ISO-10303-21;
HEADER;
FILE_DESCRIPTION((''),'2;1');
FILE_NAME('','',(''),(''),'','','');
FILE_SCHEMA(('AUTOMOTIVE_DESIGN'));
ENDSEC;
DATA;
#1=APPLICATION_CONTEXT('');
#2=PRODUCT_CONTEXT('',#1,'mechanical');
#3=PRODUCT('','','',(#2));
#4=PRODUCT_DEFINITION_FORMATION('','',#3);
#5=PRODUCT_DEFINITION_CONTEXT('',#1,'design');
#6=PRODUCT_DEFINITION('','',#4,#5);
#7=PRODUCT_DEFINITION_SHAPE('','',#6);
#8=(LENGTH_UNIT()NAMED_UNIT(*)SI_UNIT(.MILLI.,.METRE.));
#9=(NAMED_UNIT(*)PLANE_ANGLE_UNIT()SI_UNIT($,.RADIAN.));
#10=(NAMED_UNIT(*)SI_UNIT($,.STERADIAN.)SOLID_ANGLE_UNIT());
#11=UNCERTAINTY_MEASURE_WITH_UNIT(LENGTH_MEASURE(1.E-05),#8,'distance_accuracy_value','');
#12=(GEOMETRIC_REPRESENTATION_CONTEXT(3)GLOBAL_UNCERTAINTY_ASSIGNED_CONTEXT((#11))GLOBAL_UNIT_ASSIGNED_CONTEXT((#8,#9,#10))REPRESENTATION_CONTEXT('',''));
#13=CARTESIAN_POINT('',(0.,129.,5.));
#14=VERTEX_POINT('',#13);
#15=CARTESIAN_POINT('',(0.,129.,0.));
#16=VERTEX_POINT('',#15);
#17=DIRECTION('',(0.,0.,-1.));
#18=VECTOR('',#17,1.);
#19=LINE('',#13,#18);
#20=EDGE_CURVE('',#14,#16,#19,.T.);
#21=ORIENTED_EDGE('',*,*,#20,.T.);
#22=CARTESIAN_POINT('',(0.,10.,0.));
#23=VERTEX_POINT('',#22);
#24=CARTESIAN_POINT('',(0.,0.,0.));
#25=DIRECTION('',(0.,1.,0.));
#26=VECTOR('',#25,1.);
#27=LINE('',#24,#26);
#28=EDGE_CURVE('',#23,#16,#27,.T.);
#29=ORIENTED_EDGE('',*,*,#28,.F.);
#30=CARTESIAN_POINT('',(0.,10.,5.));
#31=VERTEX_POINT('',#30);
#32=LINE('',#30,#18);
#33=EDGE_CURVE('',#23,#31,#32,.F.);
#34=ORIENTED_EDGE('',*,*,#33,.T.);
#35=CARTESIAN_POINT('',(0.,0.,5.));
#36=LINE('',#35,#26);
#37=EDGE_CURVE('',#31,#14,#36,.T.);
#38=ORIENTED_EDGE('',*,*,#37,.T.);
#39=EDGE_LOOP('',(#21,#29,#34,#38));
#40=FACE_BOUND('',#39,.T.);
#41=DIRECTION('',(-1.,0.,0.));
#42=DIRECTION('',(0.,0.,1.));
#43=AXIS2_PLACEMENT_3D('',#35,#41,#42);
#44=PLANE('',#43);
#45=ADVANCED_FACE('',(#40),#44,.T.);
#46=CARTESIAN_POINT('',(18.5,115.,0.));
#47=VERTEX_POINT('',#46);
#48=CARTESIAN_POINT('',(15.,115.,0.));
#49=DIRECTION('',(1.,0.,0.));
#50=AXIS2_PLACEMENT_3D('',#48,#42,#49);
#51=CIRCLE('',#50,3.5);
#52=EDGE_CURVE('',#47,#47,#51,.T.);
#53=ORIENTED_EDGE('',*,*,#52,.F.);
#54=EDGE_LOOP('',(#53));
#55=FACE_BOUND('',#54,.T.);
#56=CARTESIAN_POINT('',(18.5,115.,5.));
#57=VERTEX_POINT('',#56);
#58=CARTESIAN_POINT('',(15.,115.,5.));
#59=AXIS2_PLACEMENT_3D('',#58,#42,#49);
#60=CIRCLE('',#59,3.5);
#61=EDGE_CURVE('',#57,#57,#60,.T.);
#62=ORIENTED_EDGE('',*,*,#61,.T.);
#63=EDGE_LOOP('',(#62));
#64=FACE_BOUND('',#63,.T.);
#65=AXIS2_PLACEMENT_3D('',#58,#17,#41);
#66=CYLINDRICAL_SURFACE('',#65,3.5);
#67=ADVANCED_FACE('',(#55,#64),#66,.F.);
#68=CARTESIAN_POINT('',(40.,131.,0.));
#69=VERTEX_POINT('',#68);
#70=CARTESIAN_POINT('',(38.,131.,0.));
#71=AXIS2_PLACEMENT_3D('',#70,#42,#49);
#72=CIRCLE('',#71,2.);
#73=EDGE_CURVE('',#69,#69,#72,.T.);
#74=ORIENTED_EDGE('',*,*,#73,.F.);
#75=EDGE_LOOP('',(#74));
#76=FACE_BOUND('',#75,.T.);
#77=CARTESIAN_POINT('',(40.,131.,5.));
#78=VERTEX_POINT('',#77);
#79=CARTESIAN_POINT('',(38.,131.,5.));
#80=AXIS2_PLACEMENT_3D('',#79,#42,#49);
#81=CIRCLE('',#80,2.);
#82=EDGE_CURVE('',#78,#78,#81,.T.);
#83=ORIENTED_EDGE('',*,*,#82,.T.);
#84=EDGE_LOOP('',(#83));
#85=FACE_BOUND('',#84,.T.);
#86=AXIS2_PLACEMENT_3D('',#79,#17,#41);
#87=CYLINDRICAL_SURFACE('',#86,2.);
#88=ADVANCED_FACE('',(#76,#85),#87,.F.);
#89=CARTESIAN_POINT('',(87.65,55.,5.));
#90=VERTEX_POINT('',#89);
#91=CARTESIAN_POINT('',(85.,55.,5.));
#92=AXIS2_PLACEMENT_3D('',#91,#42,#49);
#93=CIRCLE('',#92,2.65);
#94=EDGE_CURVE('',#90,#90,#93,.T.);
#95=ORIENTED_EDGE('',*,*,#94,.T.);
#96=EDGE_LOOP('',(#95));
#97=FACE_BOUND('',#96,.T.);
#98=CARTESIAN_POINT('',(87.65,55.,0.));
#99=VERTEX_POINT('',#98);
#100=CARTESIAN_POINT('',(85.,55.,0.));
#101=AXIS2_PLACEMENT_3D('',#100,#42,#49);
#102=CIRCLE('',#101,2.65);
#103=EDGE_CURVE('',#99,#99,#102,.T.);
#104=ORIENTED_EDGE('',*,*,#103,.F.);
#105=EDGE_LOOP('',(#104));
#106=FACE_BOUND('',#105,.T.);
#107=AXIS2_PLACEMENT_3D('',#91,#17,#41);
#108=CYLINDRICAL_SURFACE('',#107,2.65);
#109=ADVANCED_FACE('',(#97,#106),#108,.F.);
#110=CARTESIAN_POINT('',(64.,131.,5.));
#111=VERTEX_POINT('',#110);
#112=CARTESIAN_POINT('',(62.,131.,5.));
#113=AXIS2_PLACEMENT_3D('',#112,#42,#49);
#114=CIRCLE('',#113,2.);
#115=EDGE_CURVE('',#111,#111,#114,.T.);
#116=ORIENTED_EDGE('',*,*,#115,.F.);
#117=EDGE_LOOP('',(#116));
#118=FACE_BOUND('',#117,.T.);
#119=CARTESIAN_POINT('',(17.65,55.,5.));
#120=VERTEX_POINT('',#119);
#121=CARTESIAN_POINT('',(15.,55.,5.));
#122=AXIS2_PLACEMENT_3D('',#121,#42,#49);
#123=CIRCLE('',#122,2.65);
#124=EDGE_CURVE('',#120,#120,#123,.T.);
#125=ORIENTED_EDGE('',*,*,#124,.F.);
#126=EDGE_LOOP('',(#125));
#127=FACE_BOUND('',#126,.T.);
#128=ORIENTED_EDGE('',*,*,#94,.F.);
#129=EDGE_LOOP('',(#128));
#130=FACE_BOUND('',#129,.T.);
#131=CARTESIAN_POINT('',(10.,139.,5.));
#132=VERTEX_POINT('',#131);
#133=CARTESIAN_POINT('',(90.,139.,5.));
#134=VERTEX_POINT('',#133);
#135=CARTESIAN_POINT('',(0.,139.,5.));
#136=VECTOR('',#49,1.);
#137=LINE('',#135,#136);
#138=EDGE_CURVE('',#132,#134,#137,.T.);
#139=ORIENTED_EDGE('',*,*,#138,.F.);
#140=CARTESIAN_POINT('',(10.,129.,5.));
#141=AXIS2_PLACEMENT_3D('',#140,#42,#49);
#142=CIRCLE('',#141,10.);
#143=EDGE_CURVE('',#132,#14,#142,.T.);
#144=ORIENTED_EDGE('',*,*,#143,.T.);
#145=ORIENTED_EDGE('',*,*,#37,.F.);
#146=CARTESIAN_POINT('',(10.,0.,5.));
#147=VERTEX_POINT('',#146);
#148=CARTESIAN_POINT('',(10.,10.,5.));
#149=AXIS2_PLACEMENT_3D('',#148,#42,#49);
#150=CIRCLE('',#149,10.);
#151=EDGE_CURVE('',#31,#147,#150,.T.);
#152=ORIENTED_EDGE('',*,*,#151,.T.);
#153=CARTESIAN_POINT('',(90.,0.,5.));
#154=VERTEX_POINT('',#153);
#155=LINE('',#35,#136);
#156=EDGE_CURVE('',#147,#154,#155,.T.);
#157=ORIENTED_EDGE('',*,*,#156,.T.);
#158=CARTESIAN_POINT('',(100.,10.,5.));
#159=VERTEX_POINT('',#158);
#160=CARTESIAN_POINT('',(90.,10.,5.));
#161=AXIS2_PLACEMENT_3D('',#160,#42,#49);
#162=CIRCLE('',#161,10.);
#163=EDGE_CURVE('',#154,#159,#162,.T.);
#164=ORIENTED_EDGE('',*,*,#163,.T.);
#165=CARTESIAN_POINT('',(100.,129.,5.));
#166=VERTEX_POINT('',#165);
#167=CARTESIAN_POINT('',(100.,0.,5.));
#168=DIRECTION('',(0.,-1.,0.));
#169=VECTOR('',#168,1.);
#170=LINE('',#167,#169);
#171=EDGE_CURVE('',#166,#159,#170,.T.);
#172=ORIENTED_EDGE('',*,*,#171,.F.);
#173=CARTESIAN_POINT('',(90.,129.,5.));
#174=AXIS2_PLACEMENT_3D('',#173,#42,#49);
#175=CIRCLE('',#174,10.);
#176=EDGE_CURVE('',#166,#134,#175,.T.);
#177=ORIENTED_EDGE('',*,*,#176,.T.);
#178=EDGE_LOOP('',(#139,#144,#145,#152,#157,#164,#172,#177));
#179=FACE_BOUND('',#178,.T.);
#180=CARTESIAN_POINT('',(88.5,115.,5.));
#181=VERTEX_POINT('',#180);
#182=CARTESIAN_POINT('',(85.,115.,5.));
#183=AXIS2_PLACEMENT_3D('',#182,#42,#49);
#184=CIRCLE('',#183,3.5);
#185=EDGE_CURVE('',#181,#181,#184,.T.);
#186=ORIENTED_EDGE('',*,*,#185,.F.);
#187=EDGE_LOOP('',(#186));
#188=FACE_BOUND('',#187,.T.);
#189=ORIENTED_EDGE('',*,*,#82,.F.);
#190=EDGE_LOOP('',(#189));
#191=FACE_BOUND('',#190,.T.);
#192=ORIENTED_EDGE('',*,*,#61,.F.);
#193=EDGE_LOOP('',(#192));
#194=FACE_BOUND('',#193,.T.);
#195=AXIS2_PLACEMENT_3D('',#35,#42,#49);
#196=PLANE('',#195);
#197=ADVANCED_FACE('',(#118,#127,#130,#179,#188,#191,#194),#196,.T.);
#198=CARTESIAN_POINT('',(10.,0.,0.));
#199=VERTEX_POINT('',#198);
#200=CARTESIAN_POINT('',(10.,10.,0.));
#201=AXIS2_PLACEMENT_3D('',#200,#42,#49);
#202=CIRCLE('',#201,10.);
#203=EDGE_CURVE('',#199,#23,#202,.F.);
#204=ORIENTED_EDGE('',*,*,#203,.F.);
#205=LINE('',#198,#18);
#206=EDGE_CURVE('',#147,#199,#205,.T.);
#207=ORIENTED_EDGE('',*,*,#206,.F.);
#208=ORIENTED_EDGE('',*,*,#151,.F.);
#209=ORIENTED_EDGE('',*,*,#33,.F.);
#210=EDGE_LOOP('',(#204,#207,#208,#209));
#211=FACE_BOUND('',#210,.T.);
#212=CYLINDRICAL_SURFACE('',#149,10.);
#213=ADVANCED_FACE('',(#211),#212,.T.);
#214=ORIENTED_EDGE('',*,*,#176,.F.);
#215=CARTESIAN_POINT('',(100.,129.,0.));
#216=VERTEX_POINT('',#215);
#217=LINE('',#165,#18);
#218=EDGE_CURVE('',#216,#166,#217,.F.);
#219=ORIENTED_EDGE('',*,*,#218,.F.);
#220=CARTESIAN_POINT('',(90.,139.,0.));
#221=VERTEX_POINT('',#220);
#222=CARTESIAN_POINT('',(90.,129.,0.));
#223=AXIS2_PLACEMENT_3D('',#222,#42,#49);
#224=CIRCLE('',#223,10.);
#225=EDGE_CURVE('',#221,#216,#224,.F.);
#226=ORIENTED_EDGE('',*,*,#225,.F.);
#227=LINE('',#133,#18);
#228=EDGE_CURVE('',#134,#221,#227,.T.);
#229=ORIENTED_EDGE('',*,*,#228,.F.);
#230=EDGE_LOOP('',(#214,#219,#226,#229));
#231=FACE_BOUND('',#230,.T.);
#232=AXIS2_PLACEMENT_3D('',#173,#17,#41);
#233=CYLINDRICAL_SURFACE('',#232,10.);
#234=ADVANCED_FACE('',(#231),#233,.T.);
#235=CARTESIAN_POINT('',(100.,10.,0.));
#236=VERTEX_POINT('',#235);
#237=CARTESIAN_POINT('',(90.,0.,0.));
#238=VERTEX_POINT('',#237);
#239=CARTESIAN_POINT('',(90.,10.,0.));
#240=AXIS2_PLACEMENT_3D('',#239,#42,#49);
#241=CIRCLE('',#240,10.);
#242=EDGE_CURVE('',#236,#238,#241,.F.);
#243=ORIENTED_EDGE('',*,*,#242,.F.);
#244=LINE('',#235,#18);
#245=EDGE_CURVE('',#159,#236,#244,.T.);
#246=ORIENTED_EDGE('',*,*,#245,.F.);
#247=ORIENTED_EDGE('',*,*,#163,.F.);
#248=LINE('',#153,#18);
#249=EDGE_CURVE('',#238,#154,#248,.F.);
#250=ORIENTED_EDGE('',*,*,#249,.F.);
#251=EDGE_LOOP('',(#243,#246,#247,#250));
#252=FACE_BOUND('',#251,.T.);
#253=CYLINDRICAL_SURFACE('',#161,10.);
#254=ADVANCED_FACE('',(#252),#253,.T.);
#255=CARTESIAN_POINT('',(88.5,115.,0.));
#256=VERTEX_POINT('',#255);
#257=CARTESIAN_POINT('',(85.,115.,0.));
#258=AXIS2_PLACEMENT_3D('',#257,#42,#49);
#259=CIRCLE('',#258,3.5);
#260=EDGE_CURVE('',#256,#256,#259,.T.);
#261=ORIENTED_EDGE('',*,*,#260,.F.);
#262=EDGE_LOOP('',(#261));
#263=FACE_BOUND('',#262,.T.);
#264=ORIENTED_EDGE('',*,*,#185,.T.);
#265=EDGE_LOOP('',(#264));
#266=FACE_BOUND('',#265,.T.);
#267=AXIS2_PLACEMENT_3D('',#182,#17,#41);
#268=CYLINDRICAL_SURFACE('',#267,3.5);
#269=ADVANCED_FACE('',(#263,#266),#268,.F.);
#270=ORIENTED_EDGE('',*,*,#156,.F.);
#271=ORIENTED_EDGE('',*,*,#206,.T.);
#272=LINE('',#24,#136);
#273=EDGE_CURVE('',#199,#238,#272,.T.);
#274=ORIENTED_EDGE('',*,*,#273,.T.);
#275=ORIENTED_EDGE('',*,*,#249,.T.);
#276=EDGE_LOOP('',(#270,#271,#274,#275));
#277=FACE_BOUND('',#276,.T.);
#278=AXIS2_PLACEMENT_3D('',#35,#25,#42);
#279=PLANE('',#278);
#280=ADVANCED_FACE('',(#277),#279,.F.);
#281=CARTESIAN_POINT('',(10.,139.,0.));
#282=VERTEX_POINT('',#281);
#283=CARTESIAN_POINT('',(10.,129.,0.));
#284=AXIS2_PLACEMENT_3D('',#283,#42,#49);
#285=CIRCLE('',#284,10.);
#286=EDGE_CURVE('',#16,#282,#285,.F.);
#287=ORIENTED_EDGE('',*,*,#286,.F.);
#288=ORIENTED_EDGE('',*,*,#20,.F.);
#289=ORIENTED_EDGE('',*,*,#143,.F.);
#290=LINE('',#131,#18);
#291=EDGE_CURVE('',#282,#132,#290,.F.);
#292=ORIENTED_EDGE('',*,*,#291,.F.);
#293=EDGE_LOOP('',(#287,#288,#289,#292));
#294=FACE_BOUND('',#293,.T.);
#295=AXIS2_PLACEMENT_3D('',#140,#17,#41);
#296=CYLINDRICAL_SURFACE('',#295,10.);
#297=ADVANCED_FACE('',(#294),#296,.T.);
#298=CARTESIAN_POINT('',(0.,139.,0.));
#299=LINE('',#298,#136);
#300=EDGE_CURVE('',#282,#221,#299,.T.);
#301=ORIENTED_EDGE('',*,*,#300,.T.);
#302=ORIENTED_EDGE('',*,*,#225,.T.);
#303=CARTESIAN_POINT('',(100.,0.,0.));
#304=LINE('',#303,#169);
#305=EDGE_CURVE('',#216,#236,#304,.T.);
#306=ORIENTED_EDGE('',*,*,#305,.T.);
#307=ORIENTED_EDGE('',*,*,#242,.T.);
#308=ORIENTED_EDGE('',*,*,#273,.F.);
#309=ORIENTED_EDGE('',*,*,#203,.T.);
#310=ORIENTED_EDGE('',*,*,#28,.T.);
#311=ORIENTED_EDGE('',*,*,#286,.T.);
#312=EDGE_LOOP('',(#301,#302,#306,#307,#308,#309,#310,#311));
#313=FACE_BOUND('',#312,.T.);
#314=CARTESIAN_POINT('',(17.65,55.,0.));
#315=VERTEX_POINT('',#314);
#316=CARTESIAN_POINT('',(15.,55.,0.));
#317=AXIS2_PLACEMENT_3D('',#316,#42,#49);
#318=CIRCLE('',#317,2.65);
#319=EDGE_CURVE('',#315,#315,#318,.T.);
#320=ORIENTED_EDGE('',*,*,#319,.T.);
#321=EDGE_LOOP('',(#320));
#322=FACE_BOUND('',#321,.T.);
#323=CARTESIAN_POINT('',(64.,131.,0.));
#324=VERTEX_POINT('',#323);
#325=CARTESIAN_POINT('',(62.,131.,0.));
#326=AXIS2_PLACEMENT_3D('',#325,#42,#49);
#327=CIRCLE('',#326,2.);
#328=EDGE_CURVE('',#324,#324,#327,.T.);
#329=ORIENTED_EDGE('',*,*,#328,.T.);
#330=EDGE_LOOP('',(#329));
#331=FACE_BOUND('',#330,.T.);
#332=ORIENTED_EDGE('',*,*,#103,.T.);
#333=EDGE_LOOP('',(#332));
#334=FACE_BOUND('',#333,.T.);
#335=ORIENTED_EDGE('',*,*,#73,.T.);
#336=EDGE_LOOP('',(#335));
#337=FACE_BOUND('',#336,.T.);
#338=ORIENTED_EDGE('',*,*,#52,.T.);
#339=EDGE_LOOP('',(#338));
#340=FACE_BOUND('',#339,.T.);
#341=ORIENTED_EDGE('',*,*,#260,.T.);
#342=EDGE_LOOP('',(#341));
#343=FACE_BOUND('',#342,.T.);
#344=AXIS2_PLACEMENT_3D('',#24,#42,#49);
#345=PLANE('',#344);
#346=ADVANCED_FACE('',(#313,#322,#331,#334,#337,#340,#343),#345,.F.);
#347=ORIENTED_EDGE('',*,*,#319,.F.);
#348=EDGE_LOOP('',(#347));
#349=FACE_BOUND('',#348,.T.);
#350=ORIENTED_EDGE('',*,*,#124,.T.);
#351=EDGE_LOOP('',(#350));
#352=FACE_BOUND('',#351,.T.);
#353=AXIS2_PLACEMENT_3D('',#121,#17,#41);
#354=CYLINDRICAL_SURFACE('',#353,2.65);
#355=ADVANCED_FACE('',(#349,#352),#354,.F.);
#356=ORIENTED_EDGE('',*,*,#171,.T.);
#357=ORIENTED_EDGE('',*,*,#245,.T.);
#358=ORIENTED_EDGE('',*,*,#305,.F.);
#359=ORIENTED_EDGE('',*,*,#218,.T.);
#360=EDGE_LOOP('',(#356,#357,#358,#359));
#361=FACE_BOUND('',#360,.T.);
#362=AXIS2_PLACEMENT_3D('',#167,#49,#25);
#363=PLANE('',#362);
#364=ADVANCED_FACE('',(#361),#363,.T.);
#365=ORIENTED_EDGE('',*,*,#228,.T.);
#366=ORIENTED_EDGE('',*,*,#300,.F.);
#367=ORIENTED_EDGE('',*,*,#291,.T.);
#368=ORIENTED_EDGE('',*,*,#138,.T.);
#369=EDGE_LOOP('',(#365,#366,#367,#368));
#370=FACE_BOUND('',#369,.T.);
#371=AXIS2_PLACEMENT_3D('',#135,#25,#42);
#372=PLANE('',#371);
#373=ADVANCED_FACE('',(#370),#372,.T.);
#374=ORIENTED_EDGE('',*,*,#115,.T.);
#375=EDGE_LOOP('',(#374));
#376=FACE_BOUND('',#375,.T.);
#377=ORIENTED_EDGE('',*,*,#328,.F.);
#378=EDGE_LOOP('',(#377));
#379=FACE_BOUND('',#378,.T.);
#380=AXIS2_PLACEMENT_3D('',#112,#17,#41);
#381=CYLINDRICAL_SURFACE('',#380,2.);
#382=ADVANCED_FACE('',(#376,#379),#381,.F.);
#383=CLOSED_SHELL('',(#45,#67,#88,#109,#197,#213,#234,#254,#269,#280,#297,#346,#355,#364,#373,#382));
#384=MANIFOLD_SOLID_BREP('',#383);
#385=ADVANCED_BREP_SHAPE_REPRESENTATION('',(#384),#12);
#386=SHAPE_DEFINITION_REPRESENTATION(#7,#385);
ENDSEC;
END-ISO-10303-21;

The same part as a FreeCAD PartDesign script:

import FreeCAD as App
import Part
import Sketcher
from FreeCAD import Vector


def edges_at(feature, points):
    """Names of the edges that pass closest to the given points."""
    edges = feature.Shape.Edges
    near = lambda p: min(range(len(edges)), key=lambda i: edges[i].distToShape(Part.Vertex(*p))[0])
    return sorted({f"Edge{near(p) + 1}" for p in points})


def add_polygon(sketch, points):
    """Adds a closed chain of lines whose ends are joined by coincident constraints."""
    first, n = sketch.GeometryCount, len(points)
    for a, b in zip(points, points[1:] + points[:1]):
        sketch.addGeometry(Part.LineSegment(App.Vector(*a, 0), App.Vector(*b, 0)), False)
    for i in range(n):
        sketch.addConstraint(Sketcher.Constraint("Coincident", first + i, 2, first + (i + 1) % n, 1))

doc = App.newDocument("Part")
body = doc.addObject("PartDesign::Body", "Body")

sketch1 = body.newObject("Sketcher::SketchObject", "Sketch")
sketch1.AttachmentSupport = (doc.getObject("XY_Plane"), [""])
sketch1.MapMode = "FlatFace"
add_polygon(sketch1, [(0, 139), (0, 0), (100, 0), (100, 139)])
sketch1.addGeometry(Part.Circle(Vector(15, 55, 0), Vector(0, 0, 1), 2.6), False)
sketch1.addGeometry(Part.Circle(Vector(85, 55, 0), Vector(0, 0, 1), 2.6), False)
sketch1.addGeometry(Part.Circle(Vector(15, 115, 0), Vector(0, 0, 1), 3.5), False)
sketch1.addGeometry(Part.Circle(Vector(38, 131, 0), Vector(0, 0, 1), 2), False)
sketch1.addGeometry(Part.Circle(Vector(62, 131, 0), Vector(0, 0, 1), 2), False)
sketch1.addGeometry(Part.Circle(Vector(85, 115, 0), Vector(0, 0, 1), 3.5), False)
sketch1.addConstraint(Sketcher.Constraint("Vertical", 0))
sketch1.addConstraint(Sketcher.Constraint("Horizontal", 1))
sketch1.addConstraint(Sketcher.Constraint("Vertical", 2))
sketch1.addConstraint(Sketcher.Constraint("Horizontal", 3))
sketch1.addConstraint(Sketcher.Constraint("Coincident", 0, 2, -1, 1))
sketch1.addConstraint(Sketcher.Constraint("Equal", 4, 5))
sketch1.addConstraint(Sketcher.Constraint("Equal", 7, 8))
sketch1.addConstraint(Sketcher.Constraint("Equal", 6, 9))
sketch1.addConstraint(Sketcher.Constraint("Horizontal", 4, 3, 5, 3))
sketch1.addConstraint(Sketcher.Constraint("Horizontal", 7, 3, 8, 3))
sketch1.addConstraint(Sketcher.Constraint("Horizontal", 6, 3, 9, 3))
sketch1.addConstraint(Sketcher.Constraint("Vertical", 4, 3, 6, 3))
sketch1.addConstraint(Sketcher.Constraint("Vertical", 5, 3, 9, 3))
sketch1.addConstraint(Sketcher.Constraint("Diameter", 6, 7.0))
sketch1.addConstraint(Sketcher.Constraint("Diameter", 7, 4.0))
sketch1.addConstraint(Sketcher.Constraint("Diameter", 4, 5.3))
sketch1.addConstraint(Sketcher.Constraint("DistanceX", 1, 1, 1, 2, 100.0))
sketch1.addConstraint(Sketcher.Constraint("DistanceY", 0, 2, 0, 1, 139.0))
sketch1.addConstraint(Sketcher.Constraint("DistanceX", -1, 1, 4, 3, 15.0))
sketch1.addConstraint(Sketcher.Constraint("DistanceY", -1, 1, 4, 3, 55.0))
sketch1.addConstraint(Sketcher.Constraint("DistanceX", -1, 1, 5, 3, 85.0))
sketch1.addConstraint(Sketcher.Constraint("DistanceY", -1, 1, 6, 3, 115.0))
sketch1.addConstraint(Sketcher.Constraint("DistanceX", -1, 1, 7, 3, 38.0))
sketch1.addConstraint(Sketcher.Constraint("DistanceY", -1, 1, 7, 3, 131.0))
sketch1.addConstraint(Sketcher.Constraint("DistanceX", -1, 1, 8, 3, 62.0))
pad1 = body.newObject("PartDesign::Pad", "Pad")
pad1.Profile = sketch1
pad1.Length = 5
doc.recompute()

fillet = body.newObject("PartDesign::Fillet", "Fillet")
fillet.Base = (pad1, edges_at(pad1, [
    (0, 139, 2.5),
    (100, 139, 2.5),
    (100, 0, 2.5),
    (0, 0, 2.5),
]))
fillet.Radius = 10

doc.recompute()
